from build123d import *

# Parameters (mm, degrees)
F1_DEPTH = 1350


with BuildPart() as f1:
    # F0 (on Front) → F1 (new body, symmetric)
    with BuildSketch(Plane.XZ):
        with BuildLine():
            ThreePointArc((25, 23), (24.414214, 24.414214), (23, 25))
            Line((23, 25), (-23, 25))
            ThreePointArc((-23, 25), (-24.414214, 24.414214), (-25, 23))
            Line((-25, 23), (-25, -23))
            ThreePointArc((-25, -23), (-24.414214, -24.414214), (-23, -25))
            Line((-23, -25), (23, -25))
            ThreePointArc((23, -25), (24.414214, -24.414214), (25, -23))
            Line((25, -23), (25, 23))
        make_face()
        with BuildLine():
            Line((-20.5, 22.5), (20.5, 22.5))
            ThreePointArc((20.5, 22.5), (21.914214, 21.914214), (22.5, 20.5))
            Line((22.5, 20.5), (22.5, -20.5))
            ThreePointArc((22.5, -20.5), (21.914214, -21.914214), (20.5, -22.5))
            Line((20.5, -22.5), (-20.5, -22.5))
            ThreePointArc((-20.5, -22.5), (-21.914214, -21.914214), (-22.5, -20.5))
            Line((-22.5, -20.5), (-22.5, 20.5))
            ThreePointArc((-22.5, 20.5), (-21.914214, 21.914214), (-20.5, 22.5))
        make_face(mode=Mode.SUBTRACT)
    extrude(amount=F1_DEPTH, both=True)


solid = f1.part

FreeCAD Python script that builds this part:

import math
import FreeCAD as App
import Part
import Sketcher

V = App.Vector

doc = App.newDocument("Part")
body = doc.addObject("PartDesign::Body", "Body")

# Sketch on XZ plane
sketch1 = doc.addObject("Sketcher::SketchObject", "Sketch")
body.addObject(sketch1)
sketch1.AttachmentSupport = (doc.XZ_Plane, [""])
sketch1.MapMode = "FlatFace"
sketch1.addGeometry([
    Part.ArcOfCircle(Part.Circle(V(23, 23, 0), V(0, 0, 1), 2), math.radians(0), math.radians(90)),  # 0
    Part.LineSegment(V(23, 25, 0), V(-23, 25, 0)),  # 1
    Part.ArcOfCircle(Part.Circle(V(-23, 23, 0), V(0, 0, 1), 2), math.radians(90), math.radians(180)),  # 2
    Part.LineSegment(V(-25, 23, 0), V(-25, -23, 0)),  # 3
    Part.ArcOfCircle(Part.Circle(V(-23, -23, 0), V(0, 0, 1), 2), math.radians(180), math.radians(270)),  # 4
    Part.LineSegment(V(-23, -25, 0), V(23, -25, 0)),  # 5
    Part.ArcOfCircle(Part.Circle(V(23, -23, 0), V(0, 0, 1), 2), math.radians(-90), math.radians(0)),  # 6
    Part.LineSegment(V(25, -23, 0), V(25, 23, 0)),  # 7
    Part.ArcOfCircle(Part.Circle(V(-20.5, 20.5, 0), V(0, 0, 1), 2), math.radians(90), math.radians(180)),  # 8
    Part.LineSegment(V(-20.5, 22.5, 0), V(20.5, 22.5, 0)),  # 9
    Part.ArcOfCircle(Part.Circle(V(20.5, 20.5, 0), V(0, 0, 1), 2), math.radians(0), math.radians(90)),  # 10
    Part.LineSegment(V(22.5, 20.5, 0), V(22.5, -20.5, 0)),  # 11
    Part.ArcOfCircle(Part.Circle(V(20.5, -20.5, 0), V(0, 0, 1), 2), math.radians(-90), math.radians(0)),  # 12
    Part.LineSegment(V(20.5, -22.5, 0), V(-20.5, -22.5, 0)),  # 13
    Part.ArcOfCircle(Part.Circle(V(-20.5, -20.5, 0), V(0, 0, 1), 2), math.radians(180), math.radians(270)),  # 14
    Part.LineSegment(V(-22.5, -20.5, 0), V(-22.5, 20.5, 0)),  # 15
], False)
sketch1.addConstraint([
    Sketcher.Constraint("Tangent", 0, 2, 1, 1),
    Sketcher.Constraint("Tangent", 1, 2, 2, 1),
    Sketcher.Constraint("Tangent", 2, 2, 3, 1),
    Sketcher.Constraint("Tangent", 3, 2, 4, 1),
    Sketcher.Constraint("Tangent", 4, 2, 5, 1),
    Sketcher.Constraint("Tangent", 5, 2, 6, 1),
    Sketcher.Constraint("Tangent", 6, 2, 7, 1),
    Sketcher.Constraint("Tangent", 7, 2, 0, 1),
    Sketcher.Constraint("Tangent", 8, 1, 9, 1),
    Sketcher.Constraint("Tangent", 9, 2, 10, 2),
    Sketcher.Constraint("Tangent", 10, 1, 11, 1),
    Sketcher.Constraint("Tangent", 11, 2, 12, 2),
    Sketcher.Constraint("Tangent", 12, 1, 13, 1),
    Sketcher.Constraint("Tangent", 13, 2, 14, 2),
    Sketcher.Constraint("Tangent", 14, 1, 15, 1),
    Sketcher.Constraint("Tangent", 15, 2, 8, 2),
    Sketcher.Constraint("Horizontal", 1),
    Sketcher.Constraint("Vertical", 3),
    Sketcher.Constraint("Horizontal", 5),
    Sketcher.Constraint("Vertical", 7),
    Sketcher.Constraint("Horizontal", 9),
    Sketcher.Constraint("Vertical", 11),
    Sketcher.Constraint("Horizontal", 13),
    Sketcher.Constraint("Vertical", 15),
    Sketcher.Constraint("Equal", 0, 2),
    Sketcher.Constraint("Equal", 2, 4),
    Sketcher.Constraint("Equal", 4, 6),
    Sketcher.Constraint("Equal", 6, 8),
    Sketcher.Constraint("Equal", 8, 10),
    Sketcher.Constraint("Equal", 10, 12),
    Sketcher.Constraint("Equal", 12, 14),
    Sketcher.Constraint("Symmetric", 0, 3, 4, 3, -1, 1),
    Sketcher.Constraint("Symmetric", 8, 3, 12, 3, -1, 1),
    Sketcher.Constraint("Equal", 5, 3),
    Sketcher.Constraint("Equal", 13, 11),
    Sketcher.Constraint("Radius", 0, 1.999999),
    Sketcher.Constraint("DistanceX", 1, 2, 1, 1, 46.0),
    Sketcher.Constraint("DistanceX", 9, 1, 9, 2, 41.0),
])
pad1 = doc.addObject("PartDesign::Pad", "Pad")
body.addObject(pad1)
pad1.Profile = sketch1
pad1.Length = 2700
pad1.Midplane = True

doc.recompute()
